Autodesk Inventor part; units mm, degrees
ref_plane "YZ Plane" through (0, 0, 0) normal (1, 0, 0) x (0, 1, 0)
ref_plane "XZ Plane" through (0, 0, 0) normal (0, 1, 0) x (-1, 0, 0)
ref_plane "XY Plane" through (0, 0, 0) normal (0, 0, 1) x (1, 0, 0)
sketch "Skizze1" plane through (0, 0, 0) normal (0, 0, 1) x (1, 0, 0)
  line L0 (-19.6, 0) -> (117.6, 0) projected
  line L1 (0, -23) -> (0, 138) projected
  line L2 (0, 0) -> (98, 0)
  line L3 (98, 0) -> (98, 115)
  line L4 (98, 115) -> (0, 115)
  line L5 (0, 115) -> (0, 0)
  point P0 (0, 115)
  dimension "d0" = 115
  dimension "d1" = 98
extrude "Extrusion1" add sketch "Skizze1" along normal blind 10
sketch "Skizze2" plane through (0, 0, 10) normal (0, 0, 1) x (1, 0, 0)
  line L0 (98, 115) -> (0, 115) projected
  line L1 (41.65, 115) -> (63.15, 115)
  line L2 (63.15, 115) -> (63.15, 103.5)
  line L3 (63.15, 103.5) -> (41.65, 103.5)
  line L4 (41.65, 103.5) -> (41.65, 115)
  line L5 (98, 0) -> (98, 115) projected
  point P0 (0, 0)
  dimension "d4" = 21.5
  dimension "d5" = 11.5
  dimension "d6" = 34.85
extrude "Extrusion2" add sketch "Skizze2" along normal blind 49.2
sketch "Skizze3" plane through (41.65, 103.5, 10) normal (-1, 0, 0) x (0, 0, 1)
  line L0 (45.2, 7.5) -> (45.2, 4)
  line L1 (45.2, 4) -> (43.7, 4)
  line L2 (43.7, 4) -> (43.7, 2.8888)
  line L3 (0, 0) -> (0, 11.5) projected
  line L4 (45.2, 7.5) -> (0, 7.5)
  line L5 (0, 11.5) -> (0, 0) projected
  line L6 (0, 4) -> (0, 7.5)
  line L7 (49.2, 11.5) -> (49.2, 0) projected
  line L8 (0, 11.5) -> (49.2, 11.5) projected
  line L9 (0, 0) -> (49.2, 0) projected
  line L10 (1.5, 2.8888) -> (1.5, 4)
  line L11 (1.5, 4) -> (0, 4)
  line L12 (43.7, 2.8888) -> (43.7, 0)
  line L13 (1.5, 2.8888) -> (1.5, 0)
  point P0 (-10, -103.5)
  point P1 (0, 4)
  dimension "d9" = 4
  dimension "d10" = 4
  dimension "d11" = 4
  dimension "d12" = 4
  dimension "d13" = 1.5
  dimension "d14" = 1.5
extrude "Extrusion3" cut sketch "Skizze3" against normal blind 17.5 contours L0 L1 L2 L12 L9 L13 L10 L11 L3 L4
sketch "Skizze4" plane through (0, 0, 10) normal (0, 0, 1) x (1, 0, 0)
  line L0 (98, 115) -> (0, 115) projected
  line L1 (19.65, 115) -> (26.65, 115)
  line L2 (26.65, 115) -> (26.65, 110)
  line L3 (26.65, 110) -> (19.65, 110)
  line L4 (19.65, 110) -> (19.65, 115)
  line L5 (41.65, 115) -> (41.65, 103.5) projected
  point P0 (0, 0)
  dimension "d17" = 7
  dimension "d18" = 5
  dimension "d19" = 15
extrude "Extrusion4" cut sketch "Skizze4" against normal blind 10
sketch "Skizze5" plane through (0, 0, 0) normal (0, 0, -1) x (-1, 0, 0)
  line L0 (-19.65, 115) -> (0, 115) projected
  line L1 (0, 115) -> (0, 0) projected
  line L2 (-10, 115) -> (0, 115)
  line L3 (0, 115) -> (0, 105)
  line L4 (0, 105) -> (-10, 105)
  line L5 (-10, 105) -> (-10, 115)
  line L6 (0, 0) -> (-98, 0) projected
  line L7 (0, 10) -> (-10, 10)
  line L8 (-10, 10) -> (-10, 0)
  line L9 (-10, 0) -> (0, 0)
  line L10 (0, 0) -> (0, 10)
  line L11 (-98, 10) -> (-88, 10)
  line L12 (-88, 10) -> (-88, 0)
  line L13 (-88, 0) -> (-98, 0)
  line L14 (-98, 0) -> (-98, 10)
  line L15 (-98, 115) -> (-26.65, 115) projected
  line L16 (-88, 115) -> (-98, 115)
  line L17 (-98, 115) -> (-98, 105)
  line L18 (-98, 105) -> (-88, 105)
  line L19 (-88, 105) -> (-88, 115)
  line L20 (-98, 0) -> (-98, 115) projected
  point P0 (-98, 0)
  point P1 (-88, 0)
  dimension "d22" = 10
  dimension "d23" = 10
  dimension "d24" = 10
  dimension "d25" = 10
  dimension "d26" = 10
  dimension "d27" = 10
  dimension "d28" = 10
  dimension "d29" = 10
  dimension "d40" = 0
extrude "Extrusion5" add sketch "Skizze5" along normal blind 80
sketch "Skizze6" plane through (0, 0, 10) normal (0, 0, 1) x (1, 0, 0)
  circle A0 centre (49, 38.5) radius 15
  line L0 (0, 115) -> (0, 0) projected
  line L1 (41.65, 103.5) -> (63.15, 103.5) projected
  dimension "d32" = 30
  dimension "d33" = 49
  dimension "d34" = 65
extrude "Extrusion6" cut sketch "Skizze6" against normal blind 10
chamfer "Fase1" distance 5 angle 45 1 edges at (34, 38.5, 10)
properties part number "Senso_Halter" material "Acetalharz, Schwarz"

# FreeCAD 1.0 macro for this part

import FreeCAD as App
import Part
import Sketcher
from FreeCAD import Vector


def edges_at(feature, points):
    """Names of the edges that pass closest to the given points."""
    edges = feature.Shape.Edges
    near = lambda p: min(range(len(edges)), key=lambda i: edges[i].distToShape(Part.Vertex(*p))[0])
    return sorted({f"Edge{near(p) + 1}" for p in points})


def add_polygon(sketch, points):
    """Adds a closed chain of lines whose ends are joined by coincident constraints."""
    first, n = sketch.GeometryCount, len(points)
    for a, b in zip(points, points[1:] + points[:1]):
        sketch.addGeometry(Part.LineSegment(App.Vector(*a, 0), App.Vector(*b, 0)), False)
    for i in range(n):
        sketch.addConstraint(Sketcher.Constraint("Coincident", first + i, 2, first + (i + 1) % n, 1))

doc = App.newDocument("Part")
body = doc.addObject("PartDesign::Body", "Body")

# Sketch on XY plane
sketch1 = body.newObject("Sketcher::SketchObject", "Sketch")
sketch1.AttachmentSupport = (doc.getObject("XY_Plane"), [""])
sketch1.MapMode = "FlatFace"
add_polygon(sketch1, [(0, 115), (0, 0), (98, 0), (98, 115)])  # lines 0-3
sketch1.addConstraint([
    Sketcher.Constraint("Vertical", 0),
    Sketcher.Constraint("Horizontal", 1),
    Sketcher.Constraint("Vertical", 2),
    Sketcher.Constraint("Horizontal", 3),
    Sketcher.Constraint("Coincident", 0, 2, -1, 1),
    Sketcher.Constraint("DistanceX", 1, 1, 1, 2, 98.0),
    Sketcher.Constraint("DistanceY", 0, 2, 0, 1, 115.0),
])
pad1 = body.newObject("PartDesign::Pad", "Pad")
pad1.Profile = sketch1
pad1.Length = 10

# Sketch on XY plane
sketch2 = body.newObject("Sketcher::SketchObject", "Sketch001")
sketch2.AttachmentSupport = (doc.getObject("XY_Plane"), [""])
sketch2.MapMode = "FlatFace"
sketch2.AttachmentOffset = App.Placement(Vector(0, 0, 10), App.Rotation())
add_polygon(sketch2, [(63.15, 103.5), (63.15, 115), (41.65, 115), (41.65, 103.5)])  # lines 0-3
sketch2.addConstraint([
    Sketcher.Constraint("Vertical", 0),
    Sketcher.Constraint("Horizontal", 1),
    Sketcher.Constraint("Vertical", 2),
    Sketcher.Constraint("Horizontal", 3),
    Sketcher.Constraint("DistanceX", 1, 2, 1, 1, 21.5),
    Sketcher.Constraint("DistanceY", 0, 1, 0, 2, 11.5),
    Sketcher.Constraint("DistanceY", -1, 1, 0, 2, 115.0),
    Sketcher.Constraint("DistanceX", -1, 1, 0, 2, 63.15),
])
pad2 = body.newObject("PartDesign::Pad", "Pad001")
pad2.Profile = sketch2
pad2.Length = 49.2

# Sketch on YZ plane
sketch3 = body.newObject("Sketcher::SketchObject", "Sketch002")
sketch3.AttachmentSupport = (doc.getObject("YZ_Plane"), [""])
sketch3.MapMode = "FlatFace"
sketch3.AttachmentOffset = App.Placement(Vector(0, 0, 41.65), App.Rotation())
add_polygon(sketch3, [(107.5, 55.2), (111, 55.2), (111, 10), (107.5, 10), (107.5, 11.5), (103.5, 11.5), (103.5, 53.7), (107.5, 53.7)])  # lines 0-7
sketch3.addConstraint([
    Sketcher.Constraint("Horizontal", 0),
    Sketcher.Constraint("Vertical", 1),
    Sketcher.Constraint("Horizontal", 2),
    Sketcher.Constraint("Vertical", 3),
    Sketcher.Constraint("Horizontal", 4),
    Sketcher.Constraint("Vertical", 5),
    Sketcher.Constraint("Horizontal", 6),
    Sketcher.Constraint("Vertical", 7),
    Sketcher.Constraint("Vertical", 3, 2, 6, 2),
    Sketcher.Constraint("Equal", 3, 7),
    Sketcher.Constraint("DistanceX", 4, 2, 4, 1, 4.0),
    Sketcher.Constraint("DistanceY", 3, 1, 3, 2, 1.5),
    Sketcher.Constraint("DistanceX", 0, 1, 0, 2, 3.5),
    Sketcher.Constraint("DistanceY", 1, 2, 1, 1, 45.2),
    Sketcher.Constraint("DistanceX", -1, 1, 0, 2, 111.0),
    Sketcher.Constraint("DistanceY", -1, 1, 1, 2, 10.0),
])
pocket1 = body.newObject("PartDesign::Pocket", "Pocket")
pocket1.Profile = sketch3
pocket1.Length = 17.5
pocket1.Reversed = True

# Sketch on XY plane
sketch4 = body.newObject("Sketcher::SketchObject", "Sketch003")
sketch4.AttachmentSupport = (doc.getObject("XY_Plane"), [""])
sketch4.MapMode = "FlatFace"
sketch4.AttachmentOffset = App.Placement(Vector(0, 0, 10), App.Rotation())
add_polygon(sketch4, [(26.65, 110), (26.65, 115), (19.65, 115), (19.65, 110)])  # lines 0-3
sketch4.addConstraint([
    Sketcher.Constraint("Vertical", 0),
    Sketcher.Constraint("Horizontal", 1),
    Sketcher.Constraint("Vertical", 2),
    Sketcher.Constraint("Horizontal", 3),
    Sketcher.Constraint("DistanceX", 1, 2, 1, 1, 7.0),
    Sketcher.Constraint("DistanceY", 0, 1, 0, 2, 5.0),
    Sketcher.Constraint("DistanceY", -1, 1, 0, 2, 115.0),
    Sketcher.Constraint("DistanceX", -1, 1, 0, 2, 26.65),
])
pocket2 = body.newObject("PartDesign::Pocket", "Pocket001")
pocket2.Profile = sketch4
pocket2.Length = 10

# Sketch on XY plane
sketch5 = body.newObject("Sketcher::SketchObject", "Sketch004")
sketch5.AttachmentSupport = (doc.getObject("XY_Plane"), [""])
sketch5.MapMode = "FlatFace"
add_polygon(sketch5, [(98, 115), (98, 105), (88, 105), (88, 115)])  # lines 0-3
add_polygon(sketch5, [(98, 0), (88, 0), (88, 10), (98, 10)])  # lines 4-7
add_polygon(sketch5, [(0, 0), (0, 10), (10, 10), (10, 0)])  # lines 8-11
add_polygon(sketch5, [(0, 115), (10, 115), (10, 105), (0, 105)])  # lines 12-15
sketch5.addConstraint([
    Sketcher.Constraint("Vertical", 0),
    Sketcher.Constraint("Horizontal", 1),
    Sketcher.Constraint("Vertical", 2),
    Sketcher.Constraint("Horizontal", 3),
    Sketcher.Constraint("Horizontal", 4),
    Sketcher.Constraint("Vertical", 5),
    Sketcher.Constraint("Horizontal", 6),
    Sketcher.Constraint("Vertical", 7),
    Sketcher.Constraint("Vertical", 8),
    Sketcher.Constraint("Horizontal", 9),
    Sketcher.Constraint("Vertical", 10),
    Sketcher.Constraint("Horizontal", 11),
    Sketcher.Constraint("Horizontal", 12),
    Sketcher.Constraint("Vertical", 13),
    Sketcher.Constraint("Horizontal", 14),
    Sketcher.Constraint("Vertical", 15),
    Sketcher.Constraint("Coincident", 11, 2, -1, 1),
    Sketcher.Constraint("PointOnObject", 4, 2, -1),
    Sketcher.Constraint("PointOnObject", 14, 2, -2),
    Sketcher.Constraint("Horizontal", 6, 2, 8, 2),
    Sketcher.Constraint("Horizontal", 3, 2, 12, 2),
    Sketcher.Constraint("Horizontal", 1, 2, 13, 2),
    Sketcher.Constraint("Vertical", 2, 2, 4, 2),
    Sketcher.Constraint("Vertical", 3, 2, 6, 2),
    Sketcher.Constraint("Vertical", 10, 2, 12, 2),
    Sketcher.Constraint("Equal", 6, 9),
    Sketcher.Constraint("Equal", 14, 0),
    Sketcher.Constraint("Equal", 2, 5),
    Sketcher.Constraint("DistanceX", 1, 2, 1, 1, 10.0),
    Sketcher.Constraint("DistanceX", -1, 1, 0, 2, 98.0),
    Sketcher.Constraint("DistanceY", -1, 1, 0, 2, 105.0),
])
pad3 = body.newObject("PartDesign::Pad", "Pad002")
pad3.Profile = sketch5
pad3.Length = 80
pad3.Reversed = True

# Sketch on XY plane
sketch6 = body.newObject("Sketcher::SketchObject", "Sketch005")
sketch6.AttachmentSupport = (doc.getObject("XY_Plane"), [""])
sketch6.MapMode = "FlatFace"
sketch6.AttachmentOffset = App.Placement(Vector(0, 0, 10), App.Rotation())
sketch6.addGeometry(Part.Circle(Vector(49, 38.5, 0), Vector(0, 0, 1), 15), False)
sketch6.addConstraint([
    Sketcher.Constraint("Diameter", 0, 30.0),
    Sketcher.Constraint("DistanceX", -1, 1, 0, 3, 49.0),
    Sketcher.Constraint("DistanceY", -1, 1, 0, 3, 38.5),
])
pocket3 = body.newObject("PartDesign::Pocket", "Pocket002")
pocket3.Profile = sketch6
pocket3.Length = 10
doc.recompute()

chamfer = body.newObject("PartDesign::Chamfer", "Chamfer")
chamfer.Base = (pocket3, edges_at(pocket3, [(34, 38.5, 10)]))
chamfer.Size = 5

doc.recompute()
